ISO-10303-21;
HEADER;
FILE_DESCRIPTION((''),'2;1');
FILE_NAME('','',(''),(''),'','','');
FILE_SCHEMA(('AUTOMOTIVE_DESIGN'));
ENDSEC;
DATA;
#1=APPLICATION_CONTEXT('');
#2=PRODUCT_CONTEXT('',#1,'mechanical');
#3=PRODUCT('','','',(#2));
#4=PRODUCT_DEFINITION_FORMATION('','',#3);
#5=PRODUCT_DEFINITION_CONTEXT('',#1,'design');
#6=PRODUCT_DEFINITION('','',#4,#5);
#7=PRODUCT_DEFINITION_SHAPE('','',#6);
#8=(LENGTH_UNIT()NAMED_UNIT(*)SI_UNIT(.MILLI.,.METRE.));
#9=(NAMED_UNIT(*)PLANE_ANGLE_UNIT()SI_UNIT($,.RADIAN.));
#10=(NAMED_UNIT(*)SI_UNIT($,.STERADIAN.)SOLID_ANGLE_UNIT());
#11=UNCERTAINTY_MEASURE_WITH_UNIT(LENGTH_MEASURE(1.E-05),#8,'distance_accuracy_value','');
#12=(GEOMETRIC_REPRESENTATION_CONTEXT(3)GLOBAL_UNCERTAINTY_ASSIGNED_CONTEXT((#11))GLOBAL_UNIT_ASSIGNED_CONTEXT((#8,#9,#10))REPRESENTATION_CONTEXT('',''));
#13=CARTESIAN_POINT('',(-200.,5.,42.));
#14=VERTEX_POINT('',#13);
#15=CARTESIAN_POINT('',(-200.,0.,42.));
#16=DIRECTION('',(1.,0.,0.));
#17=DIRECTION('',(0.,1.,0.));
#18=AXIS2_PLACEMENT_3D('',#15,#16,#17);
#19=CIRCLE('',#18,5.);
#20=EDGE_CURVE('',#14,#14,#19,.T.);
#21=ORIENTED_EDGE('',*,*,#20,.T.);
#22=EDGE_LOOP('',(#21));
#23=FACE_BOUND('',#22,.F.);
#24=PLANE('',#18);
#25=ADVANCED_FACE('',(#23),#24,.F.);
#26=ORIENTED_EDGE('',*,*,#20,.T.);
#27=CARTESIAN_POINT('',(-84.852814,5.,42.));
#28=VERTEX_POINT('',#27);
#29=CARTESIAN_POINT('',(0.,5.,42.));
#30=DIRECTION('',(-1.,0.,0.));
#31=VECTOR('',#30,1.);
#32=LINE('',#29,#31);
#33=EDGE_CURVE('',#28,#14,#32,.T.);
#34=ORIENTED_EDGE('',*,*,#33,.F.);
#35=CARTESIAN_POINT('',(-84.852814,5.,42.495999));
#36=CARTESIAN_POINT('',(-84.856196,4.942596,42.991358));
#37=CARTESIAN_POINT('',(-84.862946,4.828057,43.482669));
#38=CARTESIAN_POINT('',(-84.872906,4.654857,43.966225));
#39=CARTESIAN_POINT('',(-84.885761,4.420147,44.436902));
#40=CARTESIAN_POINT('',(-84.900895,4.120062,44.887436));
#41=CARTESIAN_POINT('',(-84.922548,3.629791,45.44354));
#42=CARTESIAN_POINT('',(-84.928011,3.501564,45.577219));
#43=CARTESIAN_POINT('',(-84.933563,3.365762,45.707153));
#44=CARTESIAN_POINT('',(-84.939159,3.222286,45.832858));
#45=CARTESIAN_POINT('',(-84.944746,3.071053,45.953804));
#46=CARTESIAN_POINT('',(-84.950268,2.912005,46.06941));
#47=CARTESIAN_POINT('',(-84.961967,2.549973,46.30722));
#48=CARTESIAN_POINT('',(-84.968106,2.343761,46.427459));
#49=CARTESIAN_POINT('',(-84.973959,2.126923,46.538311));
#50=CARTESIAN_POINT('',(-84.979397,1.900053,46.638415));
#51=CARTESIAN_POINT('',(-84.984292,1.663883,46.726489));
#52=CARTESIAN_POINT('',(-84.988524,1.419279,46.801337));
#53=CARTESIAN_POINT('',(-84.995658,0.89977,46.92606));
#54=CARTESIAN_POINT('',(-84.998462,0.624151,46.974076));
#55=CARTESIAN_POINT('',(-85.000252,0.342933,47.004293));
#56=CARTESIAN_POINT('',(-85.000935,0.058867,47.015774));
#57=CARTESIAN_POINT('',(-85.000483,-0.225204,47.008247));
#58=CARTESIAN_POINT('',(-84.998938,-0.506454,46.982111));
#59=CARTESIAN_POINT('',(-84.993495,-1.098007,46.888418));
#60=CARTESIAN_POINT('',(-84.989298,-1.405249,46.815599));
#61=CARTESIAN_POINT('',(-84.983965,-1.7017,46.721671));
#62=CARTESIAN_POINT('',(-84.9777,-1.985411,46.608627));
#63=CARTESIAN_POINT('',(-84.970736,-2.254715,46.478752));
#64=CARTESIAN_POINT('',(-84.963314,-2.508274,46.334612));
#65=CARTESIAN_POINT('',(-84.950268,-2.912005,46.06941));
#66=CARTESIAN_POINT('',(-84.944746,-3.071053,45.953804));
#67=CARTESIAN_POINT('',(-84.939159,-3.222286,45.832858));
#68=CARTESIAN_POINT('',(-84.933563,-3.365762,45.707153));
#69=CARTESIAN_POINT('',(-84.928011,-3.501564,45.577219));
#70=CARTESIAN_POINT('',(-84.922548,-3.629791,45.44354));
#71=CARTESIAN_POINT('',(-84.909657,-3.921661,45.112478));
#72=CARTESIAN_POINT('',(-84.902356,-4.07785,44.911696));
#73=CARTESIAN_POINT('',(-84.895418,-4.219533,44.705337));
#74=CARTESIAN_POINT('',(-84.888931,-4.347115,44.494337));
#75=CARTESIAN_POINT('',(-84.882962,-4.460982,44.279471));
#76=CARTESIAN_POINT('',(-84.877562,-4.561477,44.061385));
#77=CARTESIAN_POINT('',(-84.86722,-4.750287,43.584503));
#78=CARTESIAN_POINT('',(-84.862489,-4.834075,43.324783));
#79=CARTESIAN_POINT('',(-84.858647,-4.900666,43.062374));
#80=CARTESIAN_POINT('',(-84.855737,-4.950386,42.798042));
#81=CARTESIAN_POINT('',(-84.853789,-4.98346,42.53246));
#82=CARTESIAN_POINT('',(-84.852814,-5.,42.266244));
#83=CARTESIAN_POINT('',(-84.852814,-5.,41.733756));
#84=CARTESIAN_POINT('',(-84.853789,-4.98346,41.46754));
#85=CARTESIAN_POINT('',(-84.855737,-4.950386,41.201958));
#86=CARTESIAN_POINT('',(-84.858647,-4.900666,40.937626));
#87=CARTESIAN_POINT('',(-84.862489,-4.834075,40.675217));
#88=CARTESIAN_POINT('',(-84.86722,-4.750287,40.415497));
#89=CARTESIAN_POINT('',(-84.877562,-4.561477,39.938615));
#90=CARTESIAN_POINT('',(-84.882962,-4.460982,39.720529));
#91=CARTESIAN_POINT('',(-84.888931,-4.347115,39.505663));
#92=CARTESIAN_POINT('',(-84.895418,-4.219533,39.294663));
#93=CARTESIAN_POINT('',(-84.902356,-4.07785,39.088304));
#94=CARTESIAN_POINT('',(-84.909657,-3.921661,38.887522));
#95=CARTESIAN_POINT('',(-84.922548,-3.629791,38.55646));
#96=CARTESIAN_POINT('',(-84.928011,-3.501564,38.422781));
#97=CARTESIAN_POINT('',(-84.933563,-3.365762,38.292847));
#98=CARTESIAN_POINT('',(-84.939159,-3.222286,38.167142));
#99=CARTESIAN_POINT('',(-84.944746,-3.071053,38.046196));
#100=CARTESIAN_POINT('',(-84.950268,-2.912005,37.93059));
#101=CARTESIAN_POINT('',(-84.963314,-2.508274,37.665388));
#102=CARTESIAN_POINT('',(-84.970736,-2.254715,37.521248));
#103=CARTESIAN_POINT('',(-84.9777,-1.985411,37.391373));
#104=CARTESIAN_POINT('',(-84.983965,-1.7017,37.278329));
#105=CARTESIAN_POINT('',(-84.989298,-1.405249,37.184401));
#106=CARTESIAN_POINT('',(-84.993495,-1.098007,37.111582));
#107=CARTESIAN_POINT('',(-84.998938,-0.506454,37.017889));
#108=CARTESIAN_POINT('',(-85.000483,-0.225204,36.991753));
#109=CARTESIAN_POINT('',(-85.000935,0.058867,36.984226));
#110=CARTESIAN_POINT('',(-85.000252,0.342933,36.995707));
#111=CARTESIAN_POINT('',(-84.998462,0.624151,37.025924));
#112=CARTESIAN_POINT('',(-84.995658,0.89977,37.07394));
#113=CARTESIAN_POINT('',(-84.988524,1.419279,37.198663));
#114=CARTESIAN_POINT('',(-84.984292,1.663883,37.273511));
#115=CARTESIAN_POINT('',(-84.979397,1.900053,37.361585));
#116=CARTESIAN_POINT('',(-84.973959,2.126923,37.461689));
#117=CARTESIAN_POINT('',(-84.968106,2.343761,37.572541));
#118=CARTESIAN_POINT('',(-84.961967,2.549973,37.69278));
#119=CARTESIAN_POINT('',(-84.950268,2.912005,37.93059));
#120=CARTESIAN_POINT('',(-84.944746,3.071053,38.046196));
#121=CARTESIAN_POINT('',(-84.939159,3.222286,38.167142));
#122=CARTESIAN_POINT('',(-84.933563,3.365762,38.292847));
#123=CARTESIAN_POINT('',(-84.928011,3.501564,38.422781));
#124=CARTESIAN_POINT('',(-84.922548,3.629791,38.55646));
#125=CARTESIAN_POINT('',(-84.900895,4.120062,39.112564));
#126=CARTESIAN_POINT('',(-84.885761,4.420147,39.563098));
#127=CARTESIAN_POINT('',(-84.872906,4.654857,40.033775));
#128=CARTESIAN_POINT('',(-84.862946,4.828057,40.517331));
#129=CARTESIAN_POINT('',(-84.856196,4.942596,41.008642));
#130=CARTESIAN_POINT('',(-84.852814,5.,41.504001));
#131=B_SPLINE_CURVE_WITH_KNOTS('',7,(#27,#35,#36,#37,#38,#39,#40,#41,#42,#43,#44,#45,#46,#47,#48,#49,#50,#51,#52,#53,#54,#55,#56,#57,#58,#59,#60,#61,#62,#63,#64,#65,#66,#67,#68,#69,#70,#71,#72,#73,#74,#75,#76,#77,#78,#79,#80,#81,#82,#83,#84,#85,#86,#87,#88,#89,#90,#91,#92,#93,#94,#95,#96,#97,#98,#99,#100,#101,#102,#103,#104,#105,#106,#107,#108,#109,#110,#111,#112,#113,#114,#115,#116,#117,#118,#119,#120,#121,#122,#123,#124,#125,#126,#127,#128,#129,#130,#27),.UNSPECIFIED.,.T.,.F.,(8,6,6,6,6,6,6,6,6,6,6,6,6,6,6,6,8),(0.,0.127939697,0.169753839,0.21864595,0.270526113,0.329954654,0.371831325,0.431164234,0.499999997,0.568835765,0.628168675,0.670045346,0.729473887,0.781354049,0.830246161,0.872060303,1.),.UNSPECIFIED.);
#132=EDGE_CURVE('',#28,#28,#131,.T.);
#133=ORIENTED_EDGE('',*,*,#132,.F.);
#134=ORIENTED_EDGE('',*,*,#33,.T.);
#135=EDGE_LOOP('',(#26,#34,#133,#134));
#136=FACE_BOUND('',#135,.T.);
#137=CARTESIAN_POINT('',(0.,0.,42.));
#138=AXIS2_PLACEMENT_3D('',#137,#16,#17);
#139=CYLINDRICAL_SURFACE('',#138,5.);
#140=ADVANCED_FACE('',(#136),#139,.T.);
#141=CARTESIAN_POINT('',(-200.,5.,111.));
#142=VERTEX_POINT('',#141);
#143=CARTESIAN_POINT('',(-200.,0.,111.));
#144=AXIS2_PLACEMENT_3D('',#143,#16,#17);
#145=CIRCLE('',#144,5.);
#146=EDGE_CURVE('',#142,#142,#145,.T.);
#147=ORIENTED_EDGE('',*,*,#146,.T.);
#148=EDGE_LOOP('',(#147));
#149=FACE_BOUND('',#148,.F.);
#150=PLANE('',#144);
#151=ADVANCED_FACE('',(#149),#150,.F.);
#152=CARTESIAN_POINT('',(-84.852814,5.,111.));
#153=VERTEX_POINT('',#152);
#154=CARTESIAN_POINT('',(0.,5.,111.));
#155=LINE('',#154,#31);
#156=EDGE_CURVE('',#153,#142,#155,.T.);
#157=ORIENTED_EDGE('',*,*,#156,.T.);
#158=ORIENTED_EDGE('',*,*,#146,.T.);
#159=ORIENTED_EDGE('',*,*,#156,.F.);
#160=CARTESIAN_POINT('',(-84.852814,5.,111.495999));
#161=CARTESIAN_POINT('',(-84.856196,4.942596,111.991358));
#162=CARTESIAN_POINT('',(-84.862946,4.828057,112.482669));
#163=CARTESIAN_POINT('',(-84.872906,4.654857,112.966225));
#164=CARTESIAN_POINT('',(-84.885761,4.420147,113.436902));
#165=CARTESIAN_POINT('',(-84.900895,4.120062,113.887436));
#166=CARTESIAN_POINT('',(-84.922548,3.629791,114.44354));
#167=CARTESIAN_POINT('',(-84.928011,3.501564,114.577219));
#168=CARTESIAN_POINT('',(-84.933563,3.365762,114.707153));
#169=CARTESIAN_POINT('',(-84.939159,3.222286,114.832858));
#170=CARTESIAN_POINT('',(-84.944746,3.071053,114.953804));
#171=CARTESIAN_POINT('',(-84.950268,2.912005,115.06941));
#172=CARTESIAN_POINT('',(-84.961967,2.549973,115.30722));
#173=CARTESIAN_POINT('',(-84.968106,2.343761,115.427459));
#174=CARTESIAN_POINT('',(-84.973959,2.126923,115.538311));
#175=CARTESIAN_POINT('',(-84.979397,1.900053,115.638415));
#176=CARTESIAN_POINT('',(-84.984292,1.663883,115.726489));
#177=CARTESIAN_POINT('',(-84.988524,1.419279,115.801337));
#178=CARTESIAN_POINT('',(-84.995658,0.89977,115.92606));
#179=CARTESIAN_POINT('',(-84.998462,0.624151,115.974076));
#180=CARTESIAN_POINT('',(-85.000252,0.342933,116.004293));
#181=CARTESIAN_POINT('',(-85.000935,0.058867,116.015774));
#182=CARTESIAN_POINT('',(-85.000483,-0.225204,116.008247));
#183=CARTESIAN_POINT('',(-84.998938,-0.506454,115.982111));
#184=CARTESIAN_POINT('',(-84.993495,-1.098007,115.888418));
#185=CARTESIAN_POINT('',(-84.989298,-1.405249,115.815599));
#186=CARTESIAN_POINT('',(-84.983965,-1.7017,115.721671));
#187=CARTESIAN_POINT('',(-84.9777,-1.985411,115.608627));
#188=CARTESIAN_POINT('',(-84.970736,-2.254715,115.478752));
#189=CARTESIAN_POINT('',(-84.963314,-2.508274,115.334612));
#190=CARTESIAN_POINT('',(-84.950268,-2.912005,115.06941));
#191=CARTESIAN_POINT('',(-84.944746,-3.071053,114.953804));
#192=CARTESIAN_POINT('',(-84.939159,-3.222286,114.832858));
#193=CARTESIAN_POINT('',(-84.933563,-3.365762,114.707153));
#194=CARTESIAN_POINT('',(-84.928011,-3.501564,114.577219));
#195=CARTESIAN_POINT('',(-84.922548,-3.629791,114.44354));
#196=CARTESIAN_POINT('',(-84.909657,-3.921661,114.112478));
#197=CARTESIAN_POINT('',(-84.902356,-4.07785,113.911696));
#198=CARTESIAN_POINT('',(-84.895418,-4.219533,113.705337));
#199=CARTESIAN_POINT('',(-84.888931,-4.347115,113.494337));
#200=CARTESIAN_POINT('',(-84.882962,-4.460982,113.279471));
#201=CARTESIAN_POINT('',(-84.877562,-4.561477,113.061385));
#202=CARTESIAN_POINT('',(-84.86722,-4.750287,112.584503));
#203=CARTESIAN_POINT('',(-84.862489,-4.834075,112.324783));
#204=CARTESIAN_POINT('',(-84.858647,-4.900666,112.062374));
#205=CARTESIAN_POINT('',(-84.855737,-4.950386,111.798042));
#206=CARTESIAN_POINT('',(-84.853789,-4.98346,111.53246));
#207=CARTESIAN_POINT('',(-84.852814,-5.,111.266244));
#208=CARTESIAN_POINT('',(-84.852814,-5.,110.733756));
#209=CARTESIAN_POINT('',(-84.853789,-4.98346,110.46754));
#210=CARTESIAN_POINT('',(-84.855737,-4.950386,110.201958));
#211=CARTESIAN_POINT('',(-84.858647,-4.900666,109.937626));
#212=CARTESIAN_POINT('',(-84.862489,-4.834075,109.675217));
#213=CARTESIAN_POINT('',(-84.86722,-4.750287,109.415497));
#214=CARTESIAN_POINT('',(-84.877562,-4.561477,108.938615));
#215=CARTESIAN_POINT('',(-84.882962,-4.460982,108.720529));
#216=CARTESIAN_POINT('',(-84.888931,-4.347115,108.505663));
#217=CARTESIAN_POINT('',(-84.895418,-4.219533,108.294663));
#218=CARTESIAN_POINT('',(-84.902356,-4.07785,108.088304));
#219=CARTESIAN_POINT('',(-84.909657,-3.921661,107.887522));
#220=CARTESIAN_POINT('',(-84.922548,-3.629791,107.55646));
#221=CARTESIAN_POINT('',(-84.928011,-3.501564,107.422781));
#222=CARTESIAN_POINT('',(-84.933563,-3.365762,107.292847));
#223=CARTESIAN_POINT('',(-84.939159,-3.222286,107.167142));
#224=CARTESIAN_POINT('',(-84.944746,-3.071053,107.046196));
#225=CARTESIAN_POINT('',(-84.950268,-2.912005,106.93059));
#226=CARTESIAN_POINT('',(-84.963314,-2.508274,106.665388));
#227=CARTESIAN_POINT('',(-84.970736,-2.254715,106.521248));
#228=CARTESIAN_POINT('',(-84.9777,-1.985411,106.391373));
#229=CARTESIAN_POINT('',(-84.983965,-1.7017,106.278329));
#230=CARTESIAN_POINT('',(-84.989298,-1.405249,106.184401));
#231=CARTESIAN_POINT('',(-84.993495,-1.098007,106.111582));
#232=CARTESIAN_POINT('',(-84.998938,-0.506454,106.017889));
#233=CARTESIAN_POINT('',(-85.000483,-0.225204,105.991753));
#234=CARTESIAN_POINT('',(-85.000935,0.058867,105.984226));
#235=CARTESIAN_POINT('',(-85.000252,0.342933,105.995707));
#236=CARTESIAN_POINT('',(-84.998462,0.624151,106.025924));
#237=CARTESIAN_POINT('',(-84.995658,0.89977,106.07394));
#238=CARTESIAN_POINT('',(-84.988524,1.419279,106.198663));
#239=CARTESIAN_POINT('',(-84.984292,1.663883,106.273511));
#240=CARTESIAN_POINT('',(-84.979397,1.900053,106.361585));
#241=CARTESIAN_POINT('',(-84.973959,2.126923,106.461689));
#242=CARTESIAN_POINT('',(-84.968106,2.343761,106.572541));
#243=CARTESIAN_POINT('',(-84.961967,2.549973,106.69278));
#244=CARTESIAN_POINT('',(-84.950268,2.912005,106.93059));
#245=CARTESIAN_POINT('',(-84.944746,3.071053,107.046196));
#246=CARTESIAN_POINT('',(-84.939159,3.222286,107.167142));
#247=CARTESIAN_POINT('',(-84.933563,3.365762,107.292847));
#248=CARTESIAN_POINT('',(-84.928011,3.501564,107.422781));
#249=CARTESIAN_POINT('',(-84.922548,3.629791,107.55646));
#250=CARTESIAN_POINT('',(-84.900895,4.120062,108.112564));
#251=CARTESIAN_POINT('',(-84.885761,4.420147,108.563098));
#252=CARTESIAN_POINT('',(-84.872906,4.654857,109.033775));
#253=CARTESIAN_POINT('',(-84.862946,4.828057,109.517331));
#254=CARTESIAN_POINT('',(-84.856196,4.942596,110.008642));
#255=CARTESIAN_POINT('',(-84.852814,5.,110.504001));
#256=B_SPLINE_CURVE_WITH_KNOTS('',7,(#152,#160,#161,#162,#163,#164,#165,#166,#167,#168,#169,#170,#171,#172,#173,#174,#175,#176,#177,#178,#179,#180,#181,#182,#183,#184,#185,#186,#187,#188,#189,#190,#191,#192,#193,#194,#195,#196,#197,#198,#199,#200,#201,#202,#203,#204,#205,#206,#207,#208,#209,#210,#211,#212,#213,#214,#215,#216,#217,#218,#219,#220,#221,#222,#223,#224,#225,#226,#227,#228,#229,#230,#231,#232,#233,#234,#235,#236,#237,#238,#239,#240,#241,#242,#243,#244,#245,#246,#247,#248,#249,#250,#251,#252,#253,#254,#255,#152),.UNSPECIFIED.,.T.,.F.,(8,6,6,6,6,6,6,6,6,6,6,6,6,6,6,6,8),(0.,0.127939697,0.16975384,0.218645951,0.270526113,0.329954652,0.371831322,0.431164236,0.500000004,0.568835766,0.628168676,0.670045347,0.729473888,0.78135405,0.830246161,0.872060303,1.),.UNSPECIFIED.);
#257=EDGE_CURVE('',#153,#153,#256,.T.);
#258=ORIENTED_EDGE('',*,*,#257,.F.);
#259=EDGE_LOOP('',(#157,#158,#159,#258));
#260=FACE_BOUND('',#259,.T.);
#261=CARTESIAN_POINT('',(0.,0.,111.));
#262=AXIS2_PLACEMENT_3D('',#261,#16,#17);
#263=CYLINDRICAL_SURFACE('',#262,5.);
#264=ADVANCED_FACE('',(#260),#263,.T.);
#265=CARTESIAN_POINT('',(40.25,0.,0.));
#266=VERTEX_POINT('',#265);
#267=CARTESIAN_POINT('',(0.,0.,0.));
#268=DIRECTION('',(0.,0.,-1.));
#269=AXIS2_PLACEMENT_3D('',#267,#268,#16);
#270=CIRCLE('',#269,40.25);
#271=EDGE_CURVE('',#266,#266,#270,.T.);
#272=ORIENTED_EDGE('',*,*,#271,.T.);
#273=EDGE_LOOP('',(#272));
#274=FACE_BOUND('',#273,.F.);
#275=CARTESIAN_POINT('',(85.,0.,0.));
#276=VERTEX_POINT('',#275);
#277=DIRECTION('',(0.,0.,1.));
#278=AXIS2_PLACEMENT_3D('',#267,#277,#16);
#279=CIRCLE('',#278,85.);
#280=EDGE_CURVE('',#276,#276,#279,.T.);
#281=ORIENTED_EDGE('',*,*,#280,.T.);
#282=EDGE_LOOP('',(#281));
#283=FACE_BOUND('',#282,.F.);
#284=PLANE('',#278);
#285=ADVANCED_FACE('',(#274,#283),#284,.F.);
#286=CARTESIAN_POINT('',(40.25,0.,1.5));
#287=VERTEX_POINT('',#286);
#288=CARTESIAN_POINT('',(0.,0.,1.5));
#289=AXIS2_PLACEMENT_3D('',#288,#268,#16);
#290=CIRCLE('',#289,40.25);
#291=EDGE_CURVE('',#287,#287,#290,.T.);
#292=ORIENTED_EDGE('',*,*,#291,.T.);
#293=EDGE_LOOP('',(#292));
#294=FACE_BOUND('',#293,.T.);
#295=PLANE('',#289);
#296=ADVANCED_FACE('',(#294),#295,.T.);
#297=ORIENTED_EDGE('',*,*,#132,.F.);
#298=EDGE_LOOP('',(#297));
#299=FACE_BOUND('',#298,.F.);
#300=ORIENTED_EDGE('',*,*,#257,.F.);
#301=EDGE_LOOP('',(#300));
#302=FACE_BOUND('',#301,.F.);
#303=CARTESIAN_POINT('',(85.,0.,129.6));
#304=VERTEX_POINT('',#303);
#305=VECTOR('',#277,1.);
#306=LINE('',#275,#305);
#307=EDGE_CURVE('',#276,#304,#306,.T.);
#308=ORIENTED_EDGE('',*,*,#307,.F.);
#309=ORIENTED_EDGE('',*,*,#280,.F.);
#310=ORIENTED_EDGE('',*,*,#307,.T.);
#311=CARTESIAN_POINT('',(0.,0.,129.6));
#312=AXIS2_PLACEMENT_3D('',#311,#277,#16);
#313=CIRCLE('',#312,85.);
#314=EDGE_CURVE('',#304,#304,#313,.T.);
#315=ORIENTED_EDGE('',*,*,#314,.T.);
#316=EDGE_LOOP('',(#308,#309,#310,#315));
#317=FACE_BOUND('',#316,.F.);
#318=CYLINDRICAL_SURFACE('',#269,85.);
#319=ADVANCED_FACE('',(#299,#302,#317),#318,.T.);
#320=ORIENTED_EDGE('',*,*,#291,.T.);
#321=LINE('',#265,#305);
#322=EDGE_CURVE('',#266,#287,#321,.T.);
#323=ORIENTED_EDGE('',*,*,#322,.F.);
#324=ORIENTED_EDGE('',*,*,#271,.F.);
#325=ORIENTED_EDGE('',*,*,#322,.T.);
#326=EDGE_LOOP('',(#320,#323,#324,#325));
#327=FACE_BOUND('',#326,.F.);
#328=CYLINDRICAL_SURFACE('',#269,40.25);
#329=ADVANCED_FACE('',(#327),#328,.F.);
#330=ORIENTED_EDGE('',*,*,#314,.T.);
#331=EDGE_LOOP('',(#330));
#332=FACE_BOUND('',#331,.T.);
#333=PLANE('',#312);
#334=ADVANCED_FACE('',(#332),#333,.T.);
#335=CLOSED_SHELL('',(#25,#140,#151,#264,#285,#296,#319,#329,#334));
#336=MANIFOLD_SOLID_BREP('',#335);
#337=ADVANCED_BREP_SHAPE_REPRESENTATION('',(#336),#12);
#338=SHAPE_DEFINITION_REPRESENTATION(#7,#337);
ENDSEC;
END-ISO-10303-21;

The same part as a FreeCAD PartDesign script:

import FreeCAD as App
import Part
import Sketcher

doc = App.newDocument("Part")
body = doc.addObject("PartDesign::Body", "Body")

# Sketch on XY plane
sketch1 = doc.addObject("Sketcher::SketchObject", "Sketch")
body.addObject(sketch1)
sketch1.AttachmentSupport = (doc.XY_Plane, [""])
sketch1.MapMode = "FlatFace"
sketch1.addGeometry(Part.Circle(App.Vector(0, 0, 0), App.Vector(0, 0, 1), 85), False)
sketch1.addConstraint(Sketcher.Constraint("Coincident", 0, 3, -1, 1))
sketch1.addConstraint(Sketcher.Constraint("Diameter", 0, 170.0))
pad1 = doc.addObject("PartDesign::Pad", "Pad")
body.addObject(pad1)
pad1.Profile = sketch1
pad1.Length = 129.6

# Sketch on YZ plane
sketch2 = doc.addObject("Sketcher::SketchObject", "Sketch001")
body.addObject(sketch2)
sketch2.AttachmentSupport = (doc.YZ_Plane, [""])
sketch2.MapMode = "FlatFace"
sketch2.addGeometry(Part.Circle(App.Vector(0, 42, 0), App.Vector(0, 0, 1), 5), False)
sketch2.addGeometry(Part.Circle(App.Vector(0, 111, 0), App.Vector(0, 0, 1), 5), False)
sketch2.addConstraint(Sketcher.Constraint("Equal", 0, 1))
sketch2.addConstraint(Sketcher.Constraint("PointOnObject", 0, 3, -2))
sketch2.addConstraint(Sketcher.Constraint("PointOnObject", 1, 3, -2))
sketch2.addConstraint(Sketcher.Constraint("Diameter", 0, 10.0))
sketch2.addConstraint(Sketcher.Constraint("DistanceY", -1, 1, 0, 3, 42.0))
sketch2.addConstraint(Sketcher.Constraint("DistanceY", -1, 1, 1, 3, 111.0))
pad2 = doc.addObject("PartDesign::Pad", "Pad001")
body.addObject(pad2)
pad2.Profile = sketch2
pad2.Length = 200
pad2.Reversed = True

# Sketch on XY plane
sketch3 = doc.addObject("Sketcher::SketchObject", "Sketch002")
body.addObject(sketch3)
sketch3.AttachmentSupport = (doc.XY_Plane, [""])
sketch3.MapMode = "FlatFace"
sketch3.addGeometry(Part.Circle(App.Vector(0, 0, 0), App.Vector(0, 0, 1), 40.25), False)
sketch3.addConstraint(Sketcher.Constraint("Coincident", 0, 3, -1, 1))
sketch3.addConstraint(Sketcher.Constraint("Diameter", 0, 80.5))
pocket1 = doc.addObject("PartDesign::Pocket", "Pocket")
body.addObject(pocket1)
pocket1.Profile = sketch3
pocket1.Length = 1.5
pocket1.Reversed = True

doc.recompute()
